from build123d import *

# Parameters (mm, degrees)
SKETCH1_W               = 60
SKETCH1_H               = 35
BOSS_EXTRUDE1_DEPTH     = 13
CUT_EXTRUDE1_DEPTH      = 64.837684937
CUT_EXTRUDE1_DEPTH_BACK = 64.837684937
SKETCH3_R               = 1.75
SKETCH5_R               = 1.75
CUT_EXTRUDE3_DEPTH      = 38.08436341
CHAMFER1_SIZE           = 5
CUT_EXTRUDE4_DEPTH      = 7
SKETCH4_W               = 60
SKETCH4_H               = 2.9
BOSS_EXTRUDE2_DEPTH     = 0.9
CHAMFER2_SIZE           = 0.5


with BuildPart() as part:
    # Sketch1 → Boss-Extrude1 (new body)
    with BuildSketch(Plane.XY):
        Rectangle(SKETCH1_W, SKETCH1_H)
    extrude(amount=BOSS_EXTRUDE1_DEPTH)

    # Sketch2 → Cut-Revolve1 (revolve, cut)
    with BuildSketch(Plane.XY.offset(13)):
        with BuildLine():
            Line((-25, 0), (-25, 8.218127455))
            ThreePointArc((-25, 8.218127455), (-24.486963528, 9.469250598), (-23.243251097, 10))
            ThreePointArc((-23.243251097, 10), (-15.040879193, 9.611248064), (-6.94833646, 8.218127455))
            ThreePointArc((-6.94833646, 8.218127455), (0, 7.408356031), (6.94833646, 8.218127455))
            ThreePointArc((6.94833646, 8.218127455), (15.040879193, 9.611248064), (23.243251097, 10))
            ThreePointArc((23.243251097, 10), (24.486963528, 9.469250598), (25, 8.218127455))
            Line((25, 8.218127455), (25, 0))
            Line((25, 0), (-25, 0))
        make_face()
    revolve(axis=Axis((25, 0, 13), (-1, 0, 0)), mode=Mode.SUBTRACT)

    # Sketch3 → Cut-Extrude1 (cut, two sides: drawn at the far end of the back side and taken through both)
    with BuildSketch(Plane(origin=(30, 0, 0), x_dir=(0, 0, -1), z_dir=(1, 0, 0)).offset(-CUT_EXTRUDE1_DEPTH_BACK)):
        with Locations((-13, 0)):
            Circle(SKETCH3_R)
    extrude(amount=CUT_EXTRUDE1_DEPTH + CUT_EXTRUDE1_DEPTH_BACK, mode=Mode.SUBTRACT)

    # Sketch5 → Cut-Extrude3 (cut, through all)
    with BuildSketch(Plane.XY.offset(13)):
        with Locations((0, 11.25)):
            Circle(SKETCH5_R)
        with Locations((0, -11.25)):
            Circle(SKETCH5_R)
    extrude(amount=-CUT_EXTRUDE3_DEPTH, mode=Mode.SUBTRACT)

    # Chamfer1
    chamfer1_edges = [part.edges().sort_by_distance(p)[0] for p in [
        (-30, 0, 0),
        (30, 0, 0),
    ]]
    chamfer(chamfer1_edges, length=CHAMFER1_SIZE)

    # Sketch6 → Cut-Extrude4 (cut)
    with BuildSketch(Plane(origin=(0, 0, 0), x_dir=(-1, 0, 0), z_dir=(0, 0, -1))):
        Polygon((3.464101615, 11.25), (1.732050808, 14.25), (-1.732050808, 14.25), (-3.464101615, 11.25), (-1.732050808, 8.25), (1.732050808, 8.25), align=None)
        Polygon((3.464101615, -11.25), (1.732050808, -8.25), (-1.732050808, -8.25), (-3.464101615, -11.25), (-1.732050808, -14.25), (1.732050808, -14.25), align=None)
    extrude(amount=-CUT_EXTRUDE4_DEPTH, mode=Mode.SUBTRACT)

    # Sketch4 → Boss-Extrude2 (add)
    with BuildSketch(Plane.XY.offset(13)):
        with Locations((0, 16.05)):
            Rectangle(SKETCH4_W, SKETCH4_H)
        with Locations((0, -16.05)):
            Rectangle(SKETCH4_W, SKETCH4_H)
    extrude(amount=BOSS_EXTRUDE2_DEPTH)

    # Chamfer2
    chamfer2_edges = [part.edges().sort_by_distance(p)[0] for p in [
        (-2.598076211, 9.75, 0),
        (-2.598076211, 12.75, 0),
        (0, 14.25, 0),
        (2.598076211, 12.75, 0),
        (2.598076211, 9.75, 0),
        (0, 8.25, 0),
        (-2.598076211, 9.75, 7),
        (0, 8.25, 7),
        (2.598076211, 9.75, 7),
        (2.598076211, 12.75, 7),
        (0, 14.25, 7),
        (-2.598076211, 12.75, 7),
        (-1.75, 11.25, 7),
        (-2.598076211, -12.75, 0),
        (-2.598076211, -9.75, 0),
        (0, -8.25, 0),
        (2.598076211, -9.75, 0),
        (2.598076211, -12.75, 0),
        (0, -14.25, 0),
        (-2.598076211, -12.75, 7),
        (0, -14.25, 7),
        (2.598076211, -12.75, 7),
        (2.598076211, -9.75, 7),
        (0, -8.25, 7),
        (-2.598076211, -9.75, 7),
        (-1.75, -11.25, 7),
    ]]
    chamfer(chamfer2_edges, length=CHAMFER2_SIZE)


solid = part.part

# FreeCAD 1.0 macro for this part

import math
import FreeCAD as App
import Part
import Sketcher
from FreeCAD import Vector
Q = App.Units.Quantity


def edges_at(feature, points):
    """Names of the edges that pass closest to the given points."""
    edges = feature.Shape.Edges
    near = lambda p: min(range(len(edges)), key=lambda i: edges[i].distToShape(Part.Vertex(*p))[0])
    return sorted({f"Edge{near(p) + 1}" for p in points})

doc = App.newDocument("Part")
body = doc.addObject("PartDesign::Body", "Body")

sketch1 = body.newObject("Sketcher::SketchObject", "Sketch")
sketch1.AttachmentSupport = (doc.getObject("XY_Plane"), [""])
sketch1.MapMode = "FlatFace"
sketch1.addGeometry([
    Part.LineSegment(Vector(-30, 17.5, 0), Vector(-30, -17.5, 0)),
    Part.LineSegment(Vector(-30, -17.5, 0), Vector(30, -17.5, 0)),
    Part.LineSegment(Vector(30, -17.5, 0), Vector(30, 17.5, 0)),
    Part.LineSegment(Vector(30, 17.5, 0), Vector(-30, 17.5, 0)),
], False)
sketch1.addConstraint([
    Sketcher.Constraint("Coincident", 0, 2, 1, 1),
    Sketcher.Constraint("Coincident", 1, 2, 2, 1),
    Sketcher.Constraint("Coincident", 2, 2, 3, 1),
    Sketcher.Constraint("Coincident", 3, 2, 0, 1),
    Sketcher.Constraint("Vertical", 0),
    Sketcher.Constraint("Horizontal", 1),
    Sketcher.Constraint("Vertical", 2),
    Sketcher.Constraint("Horizontal", 3),
    Sketcher.Constraint("Symmetric", 0, 2, 2, 2, -1, 1),
    Sketcher.Constraint("DistanceX", 1, 1, 1, 2, Q("60 mm")),
    Sketcher.Constraint("DistanceY", 0, 2, 0, 1, Q("35 mm")),
])
pad1 = body.newObject("PartDesign::Pad", "Pad")
pad1.Profile = sketch1
pad1.Length = 13

sketch2 = body.newObject("Sketcher::SketchObject", "Sketch001")
sketch2.AttachmentSupport = (doc.getObject("XY_Plane"), [""])
sketch2.MapMode = "FlatFace"
sketch2.AttachmentOffset = App.Placement(Vector(0, 0, 13), App.Rotation())
sketch2.addGeometry([
    Part.LineSegment(Vector(-25, 8.218127, 0), Vector(-25, 0, 0)),
    Part.LineSegment(Vector(-25, 0, 0), Vector(25, 0, 0)),
    Part.LineSegment(Vector(25, 0, 0), Vector(25, 8.218127, 0)),
    Part.ArcOfCircle(Part.Circle(Vector(23.217948, 8.218127, 0), Vector(0, 0, 1), 1.782052), math.radians(0), math.radians(89.186432)),
    Part.ArcOfCircle(Part.Circle(Vector(22.295628, -56.732169, 0), Vector(0, 0, 1), 66.738897), math.radians(89.186432), math.radians(103.29473)),
    Part.ArcOfCircle(Part.Circle(Vector(0, 37.62374, 0), Vector(0, 0, 1), 30.215384), math.radians(-103.29473), math.radians(-76.70527)),
    Part.ArcOfCircle(Part.Circle(Vector(-22.295628, -56.732169, 0), Vector(0, 0, 1), 66.738897), math.radians(76.70527), math.radians(90.813568)),
    Part.ArcOfCircle(Part.Circle(Vector(-23.217948, 8.218127, 0), Vector(0, 0, 1), 1.782052), math.radians(90.813568), math.radians(180)),
], False)
sketch2.addConstraint([
    Sketcher.Constraint("Coincident", 0, 2, 1, 1),
    Sketcher.Constraint("Coincident", 1, 2, 2, 1),
    Sketcher.Constraint("Tangent", 2, 2, 3, 1),
    Sketcher.Constraint("Tangent", 3, 2, 4, 1),
    Sketcher.Constraint("Tangent", 4, 2, 5, 2),
    Sketcher.Constraint("Tangent", 5, 1, 6, 1),
    Sketcher.Constraint("Tangent", 6, 2, 7, 1),
    Sketcher.Constraint("Tangent", 7, 2, 0, 1),
    Sketcher.Constraint("Vertical", 0),
    Sketcher.Constraint("Horizontal", 1),
    Sketcher.Constraint("Vertical", 2),
    Sketcher.Constraint("Equal", 4, 6),
    Sketcher.Constraint("Equal", 3, 7),
    Sketcher.Constraint("Symmetric", 0, 2, 1, 2, -1, 1),
    Sketcher.Constraint("Symmetric", 4, 3, 6, 3, -2),
    Sketcher.Constraint("Horizontal", 2, 2, 4, 2),
    Sketcher.Constraint("DistanceX", 1, 1, 1, 2, Q("50 mm")),
    Sketcher.Constraint("DistanceY", -1, 1, 3, 2, Q("10 mm")),
    Sketcher.Constraint("Radius", 3, Q("1.782052 mm")),
    Sketcher.Constraint("Radius", 4, Q("66.738897 mm")),
    Sketcher.Constraint("Radius", 5, Q("30.215384 mm")),
])
groove = body.newObject("PartDesign::Groove", "Groove")
groove.Profile = sketch2
groove.ReferenceAxis = (sketch2, ["H_Axis"])
groove.Angle = 360

sketch3 = body.newObject("Sketcher::SketchObject", "Sketch002")
sketch3.AttachmentSupport = (doc.getObject("YZ_Plane"), [""])
sketch3.MapMode = "FlatFace"
sketch3.AttachmentOffset = App.Placement(Vector(0, 0, 30), App.Rotation())
sketch3.addGeometry(Part.Circle(Vector(0, 13, 0), Vector(0, 0, 1), 1.75), False)
sketch3.addConstraint([
    Sketcher.Constraint("PointOnObject", 0, 3, -2),
    Sketcher.Constraint("Diameter", 0, Q("3.5 mm")),
    Sketcher.Constraint("DistanceY", -1, 1, 0, 3, Q("13 mm")),
])
pocket1 = body.newObject("PartDesign::Pocket", "Pocket")
pocket1.Profile = sketch3
pocket1.Type = "ThroughAll"
pocket1.Midplane = True

sketch4 = body.newObject("Sketcher::SketchObject", "Sketch003")
sketch4.AttachmentSupport = (doc.getObject("XY_Plane"), [""])
sketch4.MapMode = "FlatFace"
sketch4.AttachmentOffset = App.Placement(Vector(0, 0, 13), App.Rotation())
sketch4.addGeometry([
    Part.Circle(Vector(0, 11.25, 0), Vector(0, 0, 1), 1.75),
    Part.Circle(Vector(0, -11.25, 0), Vector(0, 0, 1), 1.75),
], False)
sketch4.addConstraint([
    Sketcher.Constraint("Equal", 0, 1),
    Sketcher.Constraint("Symmetric", 0, 3, 1, 3, -1, 1),
    Sketcher.Constraint("PointOnObject", 0, 3, -2),
    Sketcher.Constraint("Diameter", 0, Q("3.5 mm")),
    Sketcher.Constraint("DistanceY", 1, 3, 0, 3, Q("22.5 mm")),
])
pocket2 = body.newObject("PartDesign::Pocket", "Pocket001")
pocket2.Profile = sketch4
pocket2.Type = "ThroughAll"
doc.recompute()

chamfer = body.newObject("PartDesign::Chamfer", "Chamfer")
chamfer.Base = (pocket2, edges_at(pocket2, [(-30, 0, 0), (30, 0, 0)]))
chamfer.Size = 5

sketch5 = body.newObject("Sketcher::SketchObject", "Sketch004")
sketch5.AttachmentSupport = (doc.getObject("XY_Plane"), [""])
sketch5.MapMode = "FlatFace"
sketch5.addGeometry([
    Part.LineSegment(Vector(-3.464102, 11.25, 0), Vector(-1.732051, 14.25, 0)),
    Part.LineSegment(Vector(-1.732051, 14.25, 0), Vector(1.732051, 14.25, 0)),
    Part.LineSegment(Vector(1.732051, 14.25, 0), Vector(3.464102, 11.25, 0)),
    Part.LineSegment(Vector(3.464102, 11.25, 0), Vector(1.732051, 8.25, 0)),
    Part.LineSegment(Vector(1.732051, 8.25, 0), Vector(-1.732051, 8.25, 0)),
    Part.LineSegment(Vector(-1.732051, 8.25, 0), Vector(-3.464102, 11.25, 0)),
    Part.LineSegment(Vector(-3.464102, -11.25, 0), Vector(-1.732051, -8.25, 0)),
    Part.LineSegment(Vector(-1.732051, -8.25, 0), Vector(1.732051, -8.25, 0)),
    Part.LineSegment(Vector(1.732051, -8.25, 0), Vector(3.464102, -11.25, 0)),
    Part.LineSegment(Vector(3.464102, -11.25, 0), Vector(1.732051, -14.25, 0)),
    Part.LineSegment(Vector(1.732051, -14.25, 0), Vector(-1.732051, -14.25, 0)),
    Part.LineSegment(Vector(-1.732051, -14.25, 0), Vector(-3.464102, -11.25, 0)),
], False)
sketch5.addConstraint([
    Sketcher.Constraint("Coincident", 0, 2, 1, 1),
    Sketcher.Constraint("Coincident", 1, 2, 2, 1),
    Sketcher.Constraint("Coincident", 2, 2, 3, 1),
    Sketcher.Constraint("Coincident", 3, 2, 4, 1),
    Sketcher.Constraint("Coincident", 4, 2, 5, 1),
    Sketcher.Constraint("Coincident", 5, 2, 0, 1),
    Sketcher.Constraint("Coincident", 6, 2, 7, 1),
    Sketcher.Constraint("Coincident", 7, 2, 8, 1),
    Sketcher.Constraint("Coincident", 8, 2, 9, 1),
    Sketcher.Constraint("Coincident", 9, 2, 10, 1),
    Sketcher.Constraint("Coincident", 10, 2, 11, 1),
    Sketcher.Constraint("Coincident", 11, 2, 6, 1),
    Sketcher.Constraint("Horizontal", 1),
    Sketcher.Constraint("Horizontal", 4),
    Sketcher.Constraint("Horizontal", 7),
    Sketcher.Constraint("Horizontal", 10),
    Sketcher.Constraint("Symmetric", 3, 2, 6, 2, -1, 1),
    Sketcher.Constraint("Symmetric", 5, 2, 8, 2, -1, 1),
    Sketcher.Constraint("Symmetric", 0, 2, 9, 2, -1, 1),
    Sketcher.Constraint("Symmetric", 2, 2, 11, 2, -1, 1),
    Sketcher.Constraint("Symmetric", 2, 2, 5, 2, -2),
    Sketcher.Constraint("Parallel", 0, 3),
    Sketcher.Constraint("Parallel", 2, 5),
    Sketcher.Constraint("Parallel", 5, 8),
    Sketcher.Constraint("Parallel", 8, 11),
    Sketcher.Constraint("Vertical", 1, 2, 3, 2),
    Sketcher.Constraint("Vertical", 0, 2, 4, 2),
    Sketcher.Constraint("Angle", 0, Q("60 deg")),
    Sketcher.Constraint("DistanceY", 2, 2, 1, 2, Q("3 mm")),
    Sketcher.Constraint("DistanceY", 6, 2, 4, 2, Q("16.5 mm")),
    Sketcher.Constraint("DistanceX", 1, 1, 1, 2, Q("3.464102 mm")),
])
pocket3 = body.newObject("PartDesign::Pocket", "Pocket002")
pocket3.Profile = sketch5
pocket3.Length = 7
pocket3.Reversed = True

sketch6 = body.newObject("Sketcher::SketchObject", "Sketch005")
sketch6.AttachmentSupport = (doc.getObject("XY_Plane"), [""])
sketch6.MapMode = "FlatFace"
sketch6.AttachmentOffset = App.Placement(Vector(0, 0, 13), App.Rotation())
sketch6.addGeometry([
    Part.LineSegment(Vector(-30, 17.5, 0), Vector(-30, 14.6, 0)),
    Part.LineSegment(Vector(-30, 14.6, 0), Vector(30, 14.6, 0)),
    Part.LineSegment(Vector(30, 14.6, 0), Vector(30, 17.5, 0)),
    Part.LineSegment(Vector(30, 17.5, 0), Vector(-30, 17.5, 0)),
    Part.LineSegment(Vector(-30, -14.6, 0), Vector(-30, -17.5, 0)),
    Part.LineSegment(Vector(-30, -17.5, 0), Vector(30, -17.5, 0)),
    Part.LineSegment(Vector(30, -17.5, 0), Vector(30, -14.6, 0)),
    Part.LineSegment(Vector(30, -14.6, 0), Vector(-30, -14.6, 0)),
], False)
sketch6.addConstraint([
    Sketcher.Constraint("Coincident", 0, 2, 1, 1),
    Sketcher.Constraint("Coincident", 1, 2, 2, 1),
    Sketcher.Constraint("Coincident", 2, 2, 3, 1),
    Sketcher.Constraint("Coincident", 3, 2, 0, 1),
    Sketcher.Constraint("Coincident", 4, 2, 5, 1),
    Sketcher.Constraint("Coincident", 5, 2, 6, 1),
    Sketcher.Constraint("Coincident", 6, 2, 7, 1),
    Sketcher.Constraint("Coincident", 7, 2, 4, 1),
    Sketcher.Constraint("Vertical", 0),
    Sketcher.Constraint("Horizontal", 1),
    Sketcher.Constraint("Vertical", 2),
    Sketcher.Constraint("Horizontal", 3),
    Sketcher.Constraint("Vertical", 4),
    Sketcher.Constraint("Horizontal", 5),
    Sketcher.Constraint("Vertical", 6),
    Sketcher.Constraint("Horizontal", 7),
    Sketcher.Constraint("Symmetric", 2, 2, 4, 2, -1, 1),
    Sketcher.Constraint("Symmetric", 0, 2, 6, 2, -1, 1),
    Sketcher.Constraint("Vertical", 3, 2, 4, 2),
    Sketcher.Constraint("DistanceX", 1, 1, 1, 2, Q("60 mm")),
    Sketcher.Constraint("DistanceY", 0, 2, 0, 1, Q("2.9 mm")),
    Sketcher.Constraint("DistanceY", 4, 2, 3, 2, Q("35 mm")),
])
pad2 = body.newObject("PartDesign::Pad", "Pad001")
pad2.Profile = sketch6
pad2.Length = 0.9
doc.recompute()

chamfer2 = body.newObject("PartDesign::Chamfer", "Chamfer001")
chamfer2.Base = (pad2, edges_at(pad2, [
    (-2.598, 9.75, 0),
    (-2.598, 12.75, 0),
    (0, 14.25, 0),
    (2.598, 12.75, 0),
    (2.598, 9.75, 0),
    (0, 8.25, 0),
    (-2.598, 9.75, 7),
    (0, 8.25, 7),
    (2.598, 9.75, 7),
    (2.598, 12.75, 7),
    (0, 14.25, 7),
    (-2.598, 12.75, 7),
    (-1.75, 11.25, 7),
    (-2.598, -12.75, 0),
    (-2.598, -9.75, 0),
    (0, -8.25, 0),
    (2.598, -9.75, 0),
    (2.598, -12.75, 0),
    (0, -14.25, 0),
    (-2.598, -12.75, 7),
    (0, -14.25, 7),
    (2.598, -12.75, 7),
    (2.598, -9.75, 7),
    (0, -8.25, 7),
    (-2.598, -9.75, 7),
    (-1.75, -11.25, 7),
]))
chamfer2.Size = 0.5

doc.recompute()
